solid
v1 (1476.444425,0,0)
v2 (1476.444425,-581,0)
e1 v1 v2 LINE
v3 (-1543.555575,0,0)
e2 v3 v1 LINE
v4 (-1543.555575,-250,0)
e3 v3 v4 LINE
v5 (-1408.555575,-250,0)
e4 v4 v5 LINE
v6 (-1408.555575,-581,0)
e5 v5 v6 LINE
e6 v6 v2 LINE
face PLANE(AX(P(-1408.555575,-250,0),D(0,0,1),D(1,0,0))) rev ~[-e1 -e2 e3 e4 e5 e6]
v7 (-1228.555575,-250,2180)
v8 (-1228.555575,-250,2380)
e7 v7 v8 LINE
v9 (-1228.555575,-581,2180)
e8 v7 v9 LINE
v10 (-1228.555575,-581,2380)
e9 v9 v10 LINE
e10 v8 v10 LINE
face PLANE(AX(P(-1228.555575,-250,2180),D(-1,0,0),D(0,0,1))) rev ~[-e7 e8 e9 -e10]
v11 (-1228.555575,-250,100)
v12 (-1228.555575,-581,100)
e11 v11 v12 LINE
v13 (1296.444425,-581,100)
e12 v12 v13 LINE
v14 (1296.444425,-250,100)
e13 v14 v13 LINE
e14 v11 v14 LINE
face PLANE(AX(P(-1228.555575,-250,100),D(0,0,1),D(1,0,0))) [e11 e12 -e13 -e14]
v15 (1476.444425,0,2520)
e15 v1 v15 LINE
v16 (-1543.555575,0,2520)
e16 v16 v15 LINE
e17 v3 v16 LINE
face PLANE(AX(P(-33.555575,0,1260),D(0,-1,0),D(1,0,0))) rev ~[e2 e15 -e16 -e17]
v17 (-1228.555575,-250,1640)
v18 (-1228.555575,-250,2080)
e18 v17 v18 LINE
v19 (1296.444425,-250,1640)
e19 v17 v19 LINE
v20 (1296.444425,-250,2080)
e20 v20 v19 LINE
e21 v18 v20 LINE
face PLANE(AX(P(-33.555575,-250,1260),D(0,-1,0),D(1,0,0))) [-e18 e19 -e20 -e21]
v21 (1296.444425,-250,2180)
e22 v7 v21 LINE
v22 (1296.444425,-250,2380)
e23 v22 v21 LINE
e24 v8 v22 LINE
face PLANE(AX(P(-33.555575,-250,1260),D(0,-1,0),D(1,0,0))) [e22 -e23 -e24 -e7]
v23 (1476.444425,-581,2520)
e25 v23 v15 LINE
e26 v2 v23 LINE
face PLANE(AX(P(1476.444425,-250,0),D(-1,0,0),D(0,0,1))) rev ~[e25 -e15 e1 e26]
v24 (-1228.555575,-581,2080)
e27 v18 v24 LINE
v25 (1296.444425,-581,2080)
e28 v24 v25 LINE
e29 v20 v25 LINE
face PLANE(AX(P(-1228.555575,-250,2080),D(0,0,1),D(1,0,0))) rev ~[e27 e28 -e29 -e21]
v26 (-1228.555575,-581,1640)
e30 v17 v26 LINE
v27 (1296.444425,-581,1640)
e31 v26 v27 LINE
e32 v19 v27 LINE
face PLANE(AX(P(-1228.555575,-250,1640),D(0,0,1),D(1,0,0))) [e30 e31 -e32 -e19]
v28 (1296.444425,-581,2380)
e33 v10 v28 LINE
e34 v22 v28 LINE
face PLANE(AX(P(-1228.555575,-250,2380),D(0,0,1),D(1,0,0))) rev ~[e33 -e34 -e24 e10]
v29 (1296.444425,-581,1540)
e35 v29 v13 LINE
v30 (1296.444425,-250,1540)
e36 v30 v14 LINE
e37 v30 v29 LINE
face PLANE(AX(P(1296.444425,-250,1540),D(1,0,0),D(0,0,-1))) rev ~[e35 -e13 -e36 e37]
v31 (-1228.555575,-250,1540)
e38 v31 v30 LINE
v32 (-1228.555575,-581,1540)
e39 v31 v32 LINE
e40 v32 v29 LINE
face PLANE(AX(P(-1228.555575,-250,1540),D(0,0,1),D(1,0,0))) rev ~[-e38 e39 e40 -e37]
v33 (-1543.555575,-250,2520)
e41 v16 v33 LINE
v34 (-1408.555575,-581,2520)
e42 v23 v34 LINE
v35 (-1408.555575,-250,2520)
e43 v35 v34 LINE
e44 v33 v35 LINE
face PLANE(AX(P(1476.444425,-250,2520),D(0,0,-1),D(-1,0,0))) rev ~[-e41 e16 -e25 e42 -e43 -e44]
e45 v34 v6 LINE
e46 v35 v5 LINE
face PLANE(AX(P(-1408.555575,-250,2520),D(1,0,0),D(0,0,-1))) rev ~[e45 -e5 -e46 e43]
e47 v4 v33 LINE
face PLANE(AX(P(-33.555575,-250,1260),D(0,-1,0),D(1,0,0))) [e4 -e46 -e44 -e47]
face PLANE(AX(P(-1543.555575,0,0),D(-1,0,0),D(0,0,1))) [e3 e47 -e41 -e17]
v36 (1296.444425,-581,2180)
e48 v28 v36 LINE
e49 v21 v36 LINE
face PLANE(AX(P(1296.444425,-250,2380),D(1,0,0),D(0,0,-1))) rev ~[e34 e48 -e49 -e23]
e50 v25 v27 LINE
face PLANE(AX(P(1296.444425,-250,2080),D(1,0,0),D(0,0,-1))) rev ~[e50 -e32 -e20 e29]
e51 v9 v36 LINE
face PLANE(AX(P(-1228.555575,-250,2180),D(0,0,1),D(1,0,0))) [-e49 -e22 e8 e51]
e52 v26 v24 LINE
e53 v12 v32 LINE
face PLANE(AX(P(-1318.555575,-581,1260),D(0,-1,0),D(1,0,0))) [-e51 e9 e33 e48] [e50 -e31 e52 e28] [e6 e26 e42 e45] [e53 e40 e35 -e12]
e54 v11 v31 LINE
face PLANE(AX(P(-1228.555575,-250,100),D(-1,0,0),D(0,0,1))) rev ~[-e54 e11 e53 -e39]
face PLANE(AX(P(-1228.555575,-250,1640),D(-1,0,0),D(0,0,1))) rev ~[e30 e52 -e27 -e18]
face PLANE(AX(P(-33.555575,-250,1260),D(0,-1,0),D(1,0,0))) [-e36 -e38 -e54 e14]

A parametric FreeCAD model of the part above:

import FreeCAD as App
import Part
import Sketcher

V = App.Vector
Q = App.Units.Quantity

doc = App.newDocument("Part")
params = doc.addObject("Spreadsheet::Sheet", "Params")
for row, (alias, value) in enumerate([
    ("sketch1_width", "3020 mm"),
    ("sketch1_height", "2520 mm"),
    ("pad1_length", "250 mm"),
    ("sketch2_width", "2885 mm"),
    ("sketch2_width2", "2525 mm"),
    ("sketch2_height", "2520 mm"),
    ("sketch2_height2", "1440 mm"),
    ("sketch2_height3", "440 mm"),
    ("pad2_length", "331 mm"),
], start=1):
    params.set(f"A{row}", alias)
    params.set(f"B{row}", "=" + value)
    params.setAlias(f"B{row}", alias)

body = doc.addObject("PartDesign::Body", "Body")

# Sketch on XZ plane
sketch1 = body.newObject("Sketcher::SketchObject", "Sketch")
sketch1.AttachmentSupport = (doc.getObject("XZ_Plane"), [""])
sketch1.MapMode = "FlatFace"
sketch1.addGeometry([
    Part.LineSegment(V(-1544, 2520, 0), V(-1544, 0, 0)),
    Part.LineSegment(V(-1544, 0, 0), V(1476, 0, 0)),
    Part.LineSegment(V(1476, 0, 0), V(1476, 2520, 0)),
    Part.LineSegment(V(1476, 2520, 0), V(-1544, 2520, 0)),
], False)
sketch1.addConstraint([
    Sketcher.Constraint("Coincident", 0, 2, 1, 1),
    Sketcher.Constraint("Coincident", 1, 2, 2, 1),
    Sketcher.Constraint("Coincident", 2, 2, 3, 1),
    Sketcher.Constraint("Coincident", 3, 2, 0, 1),
    Sketcher.Constraint("Vertical", 0),
    Sketcher.Constraint("Horizontal", 1),
    Sketcher.Constraint("Vertical", 2),
    Sketcher.Constraint("Horizontal", 3),
    Sketcher.Constraint("PointOnObject", 0, 2, -1),
    Sketcher.Constraint("DistanceX", 1, 1, 1, 2, Q("3020 mm")),
    Sketcher.Constraint("DistanceY", 0, 2, 0, 1, Q("2520 mm")),
    Sketcher.Constraint("DistanceX", 0, 2, -1, 1, Q("1543.555575 mm")),
])
sketch1.setExpression("Constraints[9]", "Params.sketch1_width")
sketch1.setExpression("Constraints[10]", "Params.sketch1_height")
pad1 = body.newObject("PartDesign::Pad", "Pad")
pad1.Profile = sketch1
pad1.setExpression("Length", "Params.pad1_length")

# Sketch on XZ plane
sketch2 = body.newObject("Sketcher::SketchObject", "Sketch001")
sketch2.AttachmentSupport = (doc.getObject("XZ_Plane"), [""])
sketch2.MapMode = "FlatFace"
sketch2.AttachmentOffset = App.Placement(V(0, 0, 250), App.Rotation())
sketch2.addGeometry([
    Part.LineSegment(V(-1409, 2520, 0), V(-1409, 0, 0)),  # 0
    Part.LineSegment(V(-1409, 0, 0), V(1476, 0, 0)),  # 1
    Part.LineSegment(V(1476, 0, 0), V(1476, 2520, 0)),  # 2
    Part.LineSegment(V(1476, 2520, 0), V(-1409, 2520, 0)),  # 3
    Part.LineSegment(V(1296, 100, 0), V(-1229, 100, 0)),  # 4
    Part.LineSegment(V(-1229, 100, 0), V(-1229, 1540, 0)),  # 5
    Part.LineSegment(V(-1229, 1540, 0), V(1296, 1540, 0)),  # 6
    Part.LineSegment(V(1296, 1540, 0), V(1296, 100, 0)),  # 7
    Part.LineSegment(V(1296, 1640, 0), V(-1229, 1640, 0)),  # 8
    Part.LineSegment(V(-1229, 1640, 0), V(-1229, 2080, 0)),  # 9
    Part.LineSegment(V(-1229, 2080, 0), V(1296, 2080, 0)),  # 10
    Part.LineSegment(V(1296, 2080, 0), V(1296, 1640, 0)),  # 11
    Part.LineSegment(V(1296, 2180, 0), V(-1229, 2180, 0)),  # 12
    Part.LineSegment(V(-1229, 2180, 0), V(-1229, 2380, 0)),  # 13
    Part.LineSegment(V(-1229, 2380, 0), V(1296, 2380, 0)),  # 14
    Part.LineSegment(V(1296, 2380, 0), V(1296, 2180, 0)),  # 15
], False)
sketch2.addConstraint([
    Sketcher.Constraint("Coincident", 0, 2, 1, 1),
    Sketcher.Constraint("Coincident", 1, 2, 2, 1),
    Sketcher.Constraint("Coincident", 2, 2, 3, 1),
    Sketcher.Constraint("Coincident", 3, 2, 0, 1),
    Sketcher.Constraint("Coincident", 4, 2, 5, 1),
    Sketcher.Constraint("Coincident", 5, 2, 6, 1),
    Sketcher.Constraint("Coincident", 6, 2, 7, 1),
    Sketcher.Constraint("Coincident", 7, 2, 4, 1),
    Sketcher.Constraint("Coincident", 8, 2, 9, 1),
    Sketcher.Constraint("Coincident", 9, 2, 10, 1),
    Sketcher.Constraint("Coincident", 10, 2, 11, 1),
    Sketcher.Constraint("Coincident", 11, 2, 8, 1),
    Sketcher.Constraint("Coincident", 12, 2, 13, 1),
    Sketcher.Constraint("Coincident", 13, 2, 14, 1),
    Sketcher.Constraint("Coincident", 14, 2, 15, 1),
    Sketcher.Constraint("Coincident", 15, 2, 12, 1),
    Sketcher.Constraint("Vertical", 0),
    Sketcher.Constraint("Horizontal", 1),
    Sketcher.Constraint("Vertical", 2),
    Sketcher.Constraint("Horizontal", 3),
    Sketcher.Constraint("Horizontal", 4),
    Sketcher.Constraint("Vertical", 5),
    Sketcher.Constraint("Horizontal", 6),
    Sketcher.Constraint("Vertical", 7),
    Sketcher.Constraint("Horizontal", 8),
    Sketcher.Constraint("Vertical", 9),
    Sketcher.Constraint("Horizontal", 10),
    Sketcher.Constraint("Vertical", 11),
    Sketcher.Constraint("Horizontal", 12),
    Sketcher.Constraint("Vertical", 13),
    Sketcher.Constraint("Horizontal", 14),
    Sketcher.Constraint("Vertical", 15),
    Sketcher.Constraint("PointOnObject", 0, 2, -1),
    Sketcher.Constraint("Vertical", 5, 2, 8, 2),
    Sketcher.Constraint("Vertical", 7, 2, 10, 2),
    Sketcher.Constraint("Vertical", 9, 2, 12, 2),
    Sketcher.Constraint("Vertical", 11, 2, 14, 2),
    Sketcher.Constraint("DistanceX", 1, 1, 1, 2, Q("2885 mm")),
    Sketcher.Constraint("DistanceX", 4, 2, 4, 1, Q("2525 mm")),
    Sketcher.Constraint("DistanceY", 0, 2, 0, 1, Q("2520 mm")),
    Sketcher.Constraint("DistanceY", 5, 1, 5, 2, Q("1440 mm")),
    Sketcher.Constraint("DistanceY", 9, 1, 9, 2, Q("440 mm")),
    Sketcher.Constraint("DistanceY", 13, 1, 13, 2, Q("200 mm")),
    Sketcher.Constraint("DistanceY", -1, 1, 4, 2, Q("100 mm")),
    Sketcher.Constraint("DistanceY", -1, 1, 8, 2, Q("1640 mm")),
    Sketcher.Constraint("DistanceY", -1, 1, 12, 2, Q("2180 mm")),
    Sketcher.Constraint("DistanceX", 0, 2, 4, 2, Q("180 mm")),
    Sketcher.Constraint("DistanceX", 0, 2, -1, 1, Q("1408.555575 mm")),
])
sketch2.setExpression("Constraints[37]", "Params.sketch2_width")
sketch2.setExpression("Constraints[38]", "Params.sketch2_width2")
sketch2.setExpression("Constraints[39]", "Params.sketch2_height")
sketch2.setExpression("Constraints[40]", "Params.sketch2_height2")
sketch2.setExpression("Constraints[41]", "Params.sketch2_height3")
pad2 = body.newObject("PartDesign::Pad", "Pad001")
pad2.Profile = sketch2
pad2.setExpression("Length", "Params.pad2_length")

doc.recompute()
